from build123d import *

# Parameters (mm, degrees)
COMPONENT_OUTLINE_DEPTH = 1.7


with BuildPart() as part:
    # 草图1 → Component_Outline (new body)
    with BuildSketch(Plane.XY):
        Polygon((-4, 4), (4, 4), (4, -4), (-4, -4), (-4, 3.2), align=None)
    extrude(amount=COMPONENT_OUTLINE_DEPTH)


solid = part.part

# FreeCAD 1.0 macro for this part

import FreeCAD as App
import Part
import Sketcher
Q = App.Units.Quantity

doc = App.newDocument("Part")
body = doc.addObject("PartDesign::Body", "Body")

sketch1 = doc.addObject("Sketcher::SketchObject", "Sketch")
body.addObject(sketch1)
sketch1.AttachmentSupport = (doc.XY_Plane, [""])
sketch1.MapMode = "FlatFace"
sketch1.addGeometry([
    Part.LineSegment(App.Vector(4, 4, 0), App.Vector(-4, 4, 0)),
    Part.LineSegment(App.Vector(-4, 4, 0), App.Vector(-4, -4, 0)),
    Part.LineSegment(App.Vector(-4, -4, 0), App.Vector(4, -4, 0)),
    Part.LineSegment(App.Vector(4, -4, 0), App.Vector(4, 4, 0)),
], False)
sketch1.addConstraint([
    Sketcher.Constraint("Coincident", 0, 2, 1, 1),
    Sketcher.Constraint("Coincident", 1, 2, 2, 1),
    Sketcher.Constraint("Coincident", 2, 2, 3, 1),
    Sketcher.Constraint("Coincident", 3, 2, 0, 1),
    Sketcher.Constraint("Horizontal", 0),
    Sketcher.Constraint("Vertical", 1),
    Sketcher.Constraint("Horizontal", 2),
    Sketcher.Constraint("Vertical", 3),
    Sketcher.Constraint("Symmetric", 0, 2, 2, 2, -1, 1),
    Sketcher.Constraint("Equal", 2, 1),
    Sketcher.Constraint("DistanceX", 0, 2, 0, 1, Q("8 mm")),
])
pad1 = doc.addObject("PartDesign::Pad", "Pad")
body.addObject(pad1)
pad1.Profile = sketch1
pad1.Length = 1.7

doc.recompute()
